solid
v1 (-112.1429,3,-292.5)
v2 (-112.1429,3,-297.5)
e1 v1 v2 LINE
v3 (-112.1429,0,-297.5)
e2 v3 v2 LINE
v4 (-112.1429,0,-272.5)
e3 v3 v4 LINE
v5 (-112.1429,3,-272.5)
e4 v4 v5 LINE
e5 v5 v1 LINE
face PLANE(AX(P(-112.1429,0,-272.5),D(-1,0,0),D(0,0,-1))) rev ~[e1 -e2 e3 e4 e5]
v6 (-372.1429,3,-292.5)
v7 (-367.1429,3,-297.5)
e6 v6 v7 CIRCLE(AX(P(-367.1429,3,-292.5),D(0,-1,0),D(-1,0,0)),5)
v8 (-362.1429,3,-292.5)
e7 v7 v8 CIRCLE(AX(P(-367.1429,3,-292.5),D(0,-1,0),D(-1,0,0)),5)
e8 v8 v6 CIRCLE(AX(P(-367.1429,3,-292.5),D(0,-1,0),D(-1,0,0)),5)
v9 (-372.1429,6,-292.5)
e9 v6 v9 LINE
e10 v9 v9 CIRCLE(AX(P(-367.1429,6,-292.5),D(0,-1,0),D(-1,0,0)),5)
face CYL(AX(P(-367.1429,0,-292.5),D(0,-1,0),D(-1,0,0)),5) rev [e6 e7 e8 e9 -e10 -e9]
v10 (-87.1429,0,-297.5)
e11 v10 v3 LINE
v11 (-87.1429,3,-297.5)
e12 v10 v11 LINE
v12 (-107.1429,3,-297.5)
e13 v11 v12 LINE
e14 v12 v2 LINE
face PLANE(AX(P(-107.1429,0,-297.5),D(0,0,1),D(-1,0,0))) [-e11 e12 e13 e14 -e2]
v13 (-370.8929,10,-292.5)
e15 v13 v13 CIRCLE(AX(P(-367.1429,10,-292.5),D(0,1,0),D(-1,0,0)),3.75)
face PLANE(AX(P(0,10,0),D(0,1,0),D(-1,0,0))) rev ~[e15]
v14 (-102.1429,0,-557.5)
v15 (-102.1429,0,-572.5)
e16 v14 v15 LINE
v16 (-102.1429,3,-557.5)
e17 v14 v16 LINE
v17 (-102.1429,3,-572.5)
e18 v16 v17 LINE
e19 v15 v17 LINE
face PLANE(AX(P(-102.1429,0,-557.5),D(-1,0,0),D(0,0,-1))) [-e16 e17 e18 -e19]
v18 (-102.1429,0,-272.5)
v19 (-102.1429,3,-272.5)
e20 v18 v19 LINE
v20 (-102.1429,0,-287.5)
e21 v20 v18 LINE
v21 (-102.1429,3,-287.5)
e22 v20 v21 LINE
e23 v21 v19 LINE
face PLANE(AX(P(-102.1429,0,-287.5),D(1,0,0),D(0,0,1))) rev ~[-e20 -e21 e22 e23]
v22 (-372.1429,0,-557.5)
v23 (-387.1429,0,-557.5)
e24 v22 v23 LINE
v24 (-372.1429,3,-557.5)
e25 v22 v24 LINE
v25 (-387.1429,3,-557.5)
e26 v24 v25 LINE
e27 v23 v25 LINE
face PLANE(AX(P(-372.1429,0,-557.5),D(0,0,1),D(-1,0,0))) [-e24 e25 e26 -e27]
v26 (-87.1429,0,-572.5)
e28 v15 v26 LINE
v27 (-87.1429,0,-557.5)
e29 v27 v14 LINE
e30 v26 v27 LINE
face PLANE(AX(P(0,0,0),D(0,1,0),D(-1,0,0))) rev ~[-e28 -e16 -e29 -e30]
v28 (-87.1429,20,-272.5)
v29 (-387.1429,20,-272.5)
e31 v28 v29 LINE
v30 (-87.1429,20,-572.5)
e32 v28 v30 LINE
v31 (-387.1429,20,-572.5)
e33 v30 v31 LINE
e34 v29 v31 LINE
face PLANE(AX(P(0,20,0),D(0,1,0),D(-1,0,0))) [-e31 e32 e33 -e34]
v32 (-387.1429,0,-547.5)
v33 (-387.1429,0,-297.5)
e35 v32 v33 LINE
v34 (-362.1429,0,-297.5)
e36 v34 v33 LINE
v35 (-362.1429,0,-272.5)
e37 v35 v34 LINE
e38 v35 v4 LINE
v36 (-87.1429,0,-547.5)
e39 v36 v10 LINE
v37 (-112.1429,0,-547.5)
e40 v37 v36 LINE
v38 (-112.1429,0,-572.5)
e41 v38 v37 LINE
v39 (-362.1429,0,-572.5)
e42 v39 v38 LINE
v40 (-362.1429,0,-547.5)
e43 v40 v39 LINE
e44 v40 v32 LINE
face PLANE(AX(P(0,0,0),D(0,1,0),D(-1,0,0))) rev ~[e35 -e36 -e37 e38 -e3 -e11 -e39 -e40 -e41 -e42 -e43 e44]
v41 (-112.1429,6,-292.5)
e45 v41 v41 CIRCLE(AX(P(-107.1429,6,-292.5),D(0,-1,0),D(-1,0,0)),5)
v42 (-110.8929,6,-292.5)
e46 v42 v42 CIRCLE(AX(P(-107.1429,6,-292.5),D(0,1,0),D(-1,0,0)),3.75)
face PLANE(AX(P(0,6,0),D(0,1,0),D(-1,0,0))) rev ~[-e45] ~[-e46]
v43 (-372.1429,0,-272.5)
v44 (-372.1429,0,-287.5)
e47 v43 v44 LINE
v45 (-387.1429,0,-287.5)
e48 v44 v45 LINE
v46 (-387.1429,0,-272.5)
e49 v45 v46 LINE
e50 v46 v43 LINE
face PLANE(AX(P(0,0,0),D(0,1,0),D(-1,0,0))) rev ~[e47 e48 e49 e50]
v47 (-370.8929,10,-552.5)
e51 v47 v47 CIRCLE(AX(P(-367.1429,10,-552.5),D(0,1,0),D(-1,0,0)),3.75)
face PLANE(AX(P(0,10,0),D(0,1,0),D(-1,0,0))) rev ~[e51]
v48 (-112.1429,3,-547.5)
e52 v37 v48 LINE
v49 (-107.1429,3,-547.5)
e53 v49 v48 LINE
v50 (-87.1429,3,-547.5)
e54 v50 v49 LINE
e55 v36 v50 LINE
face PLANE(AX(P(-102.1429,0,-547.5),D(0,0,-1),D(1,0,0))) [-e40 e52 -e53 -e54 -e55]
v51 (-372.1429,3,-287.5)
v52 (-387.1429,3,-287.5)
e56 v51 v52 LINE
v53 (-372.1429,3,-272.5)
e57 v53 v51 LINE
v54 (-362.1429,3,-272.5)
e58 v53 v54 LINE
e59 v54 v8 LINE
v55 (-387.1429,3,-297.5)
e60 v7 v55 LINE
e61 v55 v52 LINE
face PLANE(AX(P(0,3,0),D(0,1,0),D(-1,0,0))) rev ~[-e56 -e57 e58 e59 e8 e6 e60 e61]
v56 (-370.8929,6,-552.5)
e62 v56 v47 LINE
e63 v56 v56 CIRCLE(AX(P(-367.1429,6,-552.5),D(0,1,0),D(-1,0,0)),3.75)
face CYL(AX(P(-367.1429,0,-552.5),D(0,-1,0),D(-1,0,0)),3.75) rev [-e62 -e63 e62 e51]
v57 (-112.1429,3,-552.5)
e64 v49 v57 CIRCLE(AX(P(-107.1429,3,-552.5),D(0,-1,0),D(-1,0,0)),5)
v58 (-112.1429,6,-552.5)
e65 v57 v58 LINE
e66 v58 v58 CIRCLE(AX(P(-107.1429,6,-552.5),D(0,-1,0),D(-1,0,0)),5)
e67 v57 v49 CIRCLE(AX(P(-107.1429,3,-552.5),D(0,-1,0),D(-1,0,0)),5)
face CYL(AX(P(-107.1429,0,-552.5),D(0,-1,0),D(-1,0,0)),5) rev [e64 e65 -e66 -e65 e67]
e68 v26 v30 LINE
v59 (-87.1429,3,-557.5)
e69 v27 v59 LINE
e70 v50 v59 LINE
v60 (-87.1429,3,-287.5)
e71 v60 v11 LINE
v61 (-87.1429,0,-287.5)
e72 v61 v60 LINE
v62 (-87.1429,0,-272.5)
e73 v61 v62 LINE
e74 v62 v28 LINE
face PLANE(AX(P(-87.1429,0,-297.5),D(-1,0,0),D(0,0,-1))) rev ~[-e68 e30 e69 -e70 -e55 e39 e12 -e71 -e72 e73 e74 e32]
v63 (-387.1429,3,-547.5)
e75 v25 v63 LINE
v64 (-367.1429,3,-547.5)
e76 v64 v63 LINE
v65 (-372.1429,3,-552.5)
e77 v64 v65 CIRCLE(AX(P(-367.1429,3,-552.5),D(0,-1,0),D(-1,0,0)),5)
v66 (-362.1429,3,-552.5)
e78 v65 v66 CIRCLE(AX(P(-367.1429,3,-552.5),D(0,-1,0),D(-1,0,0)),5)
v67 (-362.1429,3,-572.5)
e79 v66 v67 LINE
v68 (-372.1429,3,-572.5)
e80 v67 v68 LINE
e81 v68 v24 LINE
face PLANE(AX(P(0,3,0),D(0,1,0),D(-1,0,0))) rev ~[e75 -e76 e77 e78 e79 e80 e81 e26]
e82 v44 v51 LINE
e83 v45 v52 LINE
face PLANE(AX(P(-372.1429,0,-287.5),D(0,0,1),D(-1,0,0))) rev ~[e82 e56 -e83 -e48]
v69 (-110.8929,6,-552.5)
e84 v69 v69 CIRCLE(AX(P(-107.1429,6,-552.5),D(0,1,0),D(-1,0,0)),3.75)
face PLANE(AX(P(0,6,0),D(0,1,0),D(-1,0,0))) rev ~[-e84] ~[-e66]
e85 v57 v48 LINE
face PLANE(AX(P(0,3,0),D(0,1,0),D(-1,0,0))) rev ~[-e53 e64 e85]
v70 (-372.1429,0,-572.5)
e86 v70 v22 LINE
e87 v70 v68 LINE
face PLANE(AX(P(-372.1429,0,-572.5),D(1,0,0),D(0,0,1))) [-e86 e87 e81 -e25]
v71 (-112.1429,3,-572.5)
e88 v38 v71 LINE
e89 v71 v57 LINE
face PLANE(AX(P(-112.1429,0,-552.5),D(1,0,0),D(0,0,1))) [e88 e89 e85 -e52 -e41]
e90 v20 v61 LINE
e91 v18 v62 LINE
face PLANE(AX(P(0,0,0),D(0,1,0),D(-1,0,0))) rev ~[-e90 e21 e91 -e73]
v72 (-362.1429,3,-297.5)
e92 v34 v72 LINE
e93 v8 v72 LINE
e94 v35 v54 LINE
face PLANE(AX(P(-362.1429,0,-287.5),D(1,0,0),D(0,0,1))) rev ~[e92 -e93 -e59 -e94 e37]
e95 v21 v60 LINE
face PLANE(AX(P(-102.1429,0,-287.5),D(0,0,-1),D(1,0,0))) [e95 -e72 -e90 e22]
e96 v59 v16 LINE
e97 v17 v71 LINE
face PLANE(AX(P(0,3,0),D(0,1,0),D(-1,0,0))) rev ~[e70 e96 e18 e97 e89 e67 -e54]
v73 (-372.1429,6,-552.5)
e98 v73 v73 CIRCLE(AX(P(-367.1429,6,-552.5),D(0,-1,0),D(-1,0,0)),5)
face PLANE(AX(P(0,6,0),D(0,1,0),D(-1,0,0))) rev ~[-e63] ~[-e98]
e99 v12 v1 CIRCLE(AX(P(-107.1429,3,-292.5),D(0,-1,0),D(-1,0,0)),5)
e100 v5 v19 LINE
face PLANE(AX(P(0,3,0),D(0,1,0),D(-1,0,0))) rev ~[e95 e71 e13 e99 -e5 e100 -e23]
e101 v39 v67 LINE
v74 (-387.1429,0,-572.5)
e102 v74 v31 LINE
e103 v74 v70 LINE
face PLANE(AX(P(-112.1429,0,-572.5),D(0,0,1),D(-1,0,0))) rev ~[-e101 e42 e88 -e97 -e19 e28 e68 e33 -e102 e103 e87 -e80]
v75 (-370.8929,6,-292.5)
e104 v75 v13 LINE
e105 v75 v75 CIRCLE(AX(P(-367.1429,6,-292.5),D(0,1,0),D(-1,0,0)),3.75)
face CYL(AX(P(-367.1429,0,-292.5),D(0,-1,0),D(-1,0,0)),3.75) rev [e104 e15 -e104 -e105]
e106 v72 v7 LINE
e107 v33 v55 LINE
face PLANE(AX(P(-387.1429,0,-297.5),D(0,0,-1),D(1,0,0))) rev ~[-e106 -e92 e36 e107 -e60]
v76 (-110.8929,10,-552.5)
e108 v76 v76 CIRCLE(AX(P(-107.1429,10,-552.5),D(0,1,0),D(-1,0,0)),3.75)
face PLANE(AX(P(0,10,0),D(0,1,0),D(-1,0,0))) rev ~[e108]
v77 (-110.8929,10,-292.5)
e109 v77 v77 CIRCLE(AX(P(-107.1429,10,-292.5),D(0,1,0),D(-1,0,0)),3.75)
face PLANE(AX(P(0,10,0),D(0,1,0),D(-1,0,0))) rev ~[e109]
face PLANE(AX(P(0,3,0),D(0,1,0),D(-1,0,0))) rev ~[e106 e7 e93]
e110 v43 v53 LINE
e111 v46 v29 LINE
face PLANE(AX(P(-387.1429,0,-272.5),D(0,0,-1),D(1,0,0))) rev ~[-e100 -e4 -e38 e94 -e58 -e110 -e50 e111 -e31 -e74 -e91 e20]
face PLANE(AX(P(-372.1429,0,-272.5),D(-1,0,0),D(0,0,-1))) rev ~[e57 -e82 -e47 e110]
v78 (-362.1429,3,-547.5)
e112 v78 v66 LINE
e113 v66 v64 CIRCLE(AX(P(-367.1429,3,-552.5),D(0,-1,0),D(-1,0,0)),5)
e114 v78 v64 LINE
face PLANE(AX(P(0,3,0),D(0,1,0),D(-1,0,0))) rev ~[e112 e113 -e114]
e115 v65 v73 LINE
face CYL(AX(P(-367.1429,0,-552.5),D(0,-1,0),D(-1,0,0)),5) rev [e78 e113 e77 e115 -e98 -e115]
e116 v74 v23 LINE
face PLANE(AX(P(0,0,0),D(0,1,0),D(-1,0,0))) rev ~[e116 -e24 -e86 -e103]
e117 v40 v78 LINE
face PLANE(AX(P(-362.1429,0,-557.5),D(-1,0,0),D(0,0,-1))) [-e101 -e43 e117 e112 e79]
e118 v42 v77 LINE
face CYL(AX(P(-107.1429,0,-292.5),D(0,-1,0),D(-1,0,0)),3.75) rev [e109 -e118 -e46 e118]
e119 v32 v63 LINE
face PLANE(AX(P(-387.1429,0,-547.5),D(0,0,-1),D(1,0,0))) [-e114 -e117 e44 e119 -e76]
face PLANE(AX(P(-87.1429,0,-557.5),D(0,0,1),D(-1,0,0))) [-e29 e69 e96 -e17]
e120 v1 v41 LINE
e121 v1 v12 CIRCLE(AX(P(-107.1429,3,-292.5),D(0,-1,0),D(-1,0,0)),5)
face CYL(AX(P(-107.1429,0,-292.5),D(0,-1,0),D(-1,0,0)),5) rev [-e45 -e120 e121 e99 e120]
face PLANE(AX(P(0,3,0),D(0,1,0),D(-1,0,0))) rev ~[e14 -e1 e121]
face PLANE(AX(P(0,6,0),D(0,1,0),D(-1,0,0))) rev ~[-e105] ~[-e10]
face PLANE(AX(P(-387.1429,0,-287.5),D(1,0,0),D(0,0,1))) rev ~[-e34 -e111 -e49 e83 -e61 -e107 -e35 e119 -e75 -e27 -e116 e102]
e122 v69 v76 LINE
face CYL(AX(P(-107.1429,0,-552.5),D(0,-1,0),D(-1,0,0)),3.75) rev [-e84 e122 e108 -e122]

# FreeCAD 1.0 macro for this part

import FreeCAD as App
import Part
import Sketcher
from FreeCAD import Vector


def add_polygon(sketch, points):
    """Adds a closed chain of lines whose ends are joined by coincident constraints."""
    first, n = sketch.GeometryCount, len(points)
    for a, b in zip(points, points[1:] + points[:1]):
        sketch.addGeometry(Part.LineSegment(App.Vector(*a, 0), App.Vector(*b, 0)), False)
    for i in range(n):
        sketch.addConstraint(Sketcher.Constraint("Coincident", first + i, 2, first + (i + 1) % n, 1))

doc = App.newDocument("Part")
body = doc.addObject("PartDesign::Body", "Body")

sketch1 = body.newObject("Sketcher::SketchObject", "Sketch")
sketch1.AttachmentSupport = (doc.getObject("XZ_Plane"), [""])
sketch1.MapMode = "FlatFace"
add_polygon(sketch1, [(-387, -272), (-87, -272), (-87, -572), (-387, -572)])
sketch1.addConstraint(Sketcher.Constraint("Horizontal", 0))
sketch1.addConstraint(Sketcher.Constraint("Vertical", 1))
sketch1.addConstraint(Sketcher.Constraint("Horizontal", 2))
sketch1.addConstraint(Sketcher.Constraint("Vertical", 3))
sketch1.addConstraint(Sketcher.Constraint("Equal", 2, 1))
sketch1.addConstraint(Sketcher.Constraint("DistanceX", 0, 1, 0, 2, 300.0))
sketch1.addConstraint(Sketcher.Constraint("DistanceY", 0, 2, -1, 1, 272.5))
sketch1.addConstraint(Sketcher.Constraint("DistanceX", 0, 2, -1, 1, 87.143))
pad1 = body.newObject("PartDesign::Pad", "Pad")
pad1.Profile = sketch1
pad1.Length = 20
pad1.Reversed = True

sketch2 = body.newObject("Sketcher::SketchObject", "Sketch001")
sketch2.AttachmentSupport = (doc.getObject("XZ_Plane"), [""])
sketch2.MapMode = "FlatFace"
add_polygon(sketch2, [(-372, -288), (-372, -272), (-362, -272), (-362, -298), (-387, -298), (-387, -288)])
add_polygon(sketch2, [(-112, -272), (-102, -272), (-102, -288), (-87, -288), (-87, -298), (-112, -298)])
add_polygon(sketch2, [(-387, -558), (-387, -548), (-362, -548), (-362, -572), (-372, -572), (-372, -558)])
add_polygon(sketch2, [(-87, -548), (-87, -558), (-102, -558), (-102, -572), (-112, -572), (-112, -548)])
sketch2.addConstraint(Sketcher.Constraint("Vertical", 0))
sketch2.addConstraint(Sketcher.Constraint("Horizontal", 1))
sketch2.addConstraint(Sketcher.Constraint("Vertical", 2))
sketch2.addConstraint(Sketcher.Constraint("Horizontal", 3))
sketch2.addConstraint(Sketcher.Constraint("Vertical", 4))
sketch2.addConstraint(Sketcher.Constraint("Horizontal", 5))
sketch2.addConstraint(Sketcher.Constraint("Horizontal", 6))
sketch2.addConstraint(Sketcher.Constraint("Vertical", 7))
sketch2.addConstraint(Sketcher.Constraint("Horizontal", 8))
sketch2.addConstraint(Sketcher.Constraint("Vertical", 9))
sketch2.addConstraint(Sketcher.Constraint("Horizontal", 10))
sketch2.addConstraint(Sketcher.Constraint("Vertical", 11))
sketch2.addConstraint(Sketcher.Constraint("Vertical", 12))
sketch2.addConstraint(Sketcher.Constraint("Horizontal", 13))
sketch2.addConstraint(Sketcher.Constraint("Vertical", 14))
sketch2.addConstraint(Sketcher.Constraint("Horizontal", 15))
sketch2.addConstraint(Sketcher.Constraint("Vertical", 16))
sketch2.addConstraint(Sketcher.Constraint("Horizontal", 17))
sketch2.addConstraint(Sketcher.Constraint("Vertical", 18))
sketch2.addConstraint(Sketcher.Constraint("Horizontal", 19))
sketch2.addConstraint(Sketcher.Constraint("Vertical", 20))
sketch2.addConstraint(Sketcher.Constraint("Horizontal", 21))
sketch2.addConstraint(Sketcher.Constraint("Vertical", 22))
sketch2.addConstraint(Sketcher.Constraint("Horizontal", 23))
sketch2.addConstraint(Sketcher.Constraint("Horizontal", 1, 2, 6, 2))
sketch2.addConstraint(Sketcher.Constraint("Horizontal", 5, 2, 7, 2))
sketch2.addConstraint(Sketcher.Constraint("Horizontal", 3, 2, 9, 2))
sketch2.addConstraint(Sketcher.Constraint("Horizontal", 17, 2, 18, 2))
sketch2.addConstraint(Sketcher.Constraint("Horizontal", 15, 2, 20, 2))
sketch2.addConstraint(Sketcher.Constraint("Horizontal", 13, 2, 22, 2))
sketch2.addConstraint(Sketcher.Constraint("Vertical", 4, 2, 12, 2))
sketch2.addConstraint(Sketcher.Constraint("Vertical", 2, 2, 13, 2))
sketch2.addConstraint(Sketcher.Constraint("Vertical", 5, 2, 15, 2))
sketch2.addConstraint(Sketcher.Constraint("Vertical", 9, 2, 18, 2))
sketch2.addConstraint(Sketcher.Constraint("Vertical", 7, 2, 19, 2))
sketch2.addConstraint(Sketcher.Constraint("Vertical", 11, 2, 21, 2))
sketch2.addConstraint(Sketcher.Constraint("Equal", 1, 6))
sketch2.addConstraint(Sketcher.Constraint("Equal", 5, 8))
sketch2.addConstraint(Sketcher.Constraint("Equal", 19, 0))
sketch2.addConstraint(Sketcher.Constraint("Equal", 23, 2))
sketch2.addConstraint(Sketcher.Constraint("Equal", 9, 12))
sketch2.addConstraint(Sketcher.Constraint("Equal", 11, 14))
sketch2.addConstraint(Sketcher.Constraint("DistanceX", 1, 1, 1, 2, 10.0))
sketch2.addConstraint(Sketcher.Constraint("DistanceX", 3, 2, 3, 1, 25.0))
sketch2.addConstraint(Sketcher.Constraint("DistanceX", 1, 2, 6, 2, 260.0))
sketch2.addConstraint(Sketcher.Constraint("DistanceY", 12, 2, 3, 2, 250.0))
sketch2.addConstraint(Sketcher.Constraint("DistanceY", 0, 2, -1, 1, 272.5))
sketch2.addConstraint(Sketcher.Constraint("DistanceX", 0, 2, -1, 1, 372.143))
pocket1 = body.newObject("PartDesign::Pocket", "Pocket")
pocket1.Profile = sketch2
pocket1.Length = 3

sketch3 = body.newObject("Sketcher::SketchObject", "Sketch002")
sketch3.AttachmentSupport = (doc.getObject("XZ_Plane"), [""])
sketch3.MapMode = "FlatFace"
sketch3.addGeometry(Part.Circle(Vector(-107.1, -292.5, 0), Vector(0, 0, 1), 3.8), False)
sketch3.addGeometry(Part.Circle(Vector(-367.1, -292.5, 0), Vector(0, 0, 1), 3.8), False)
sketch3.addGeometry(Part.Circle(Vector(-367.1, -552.5, 0), Vector(0, 0, 1), 3.8), False)
sketch3.addGeometry(Part.Circle(Vector(-107.1, -552.5, 0), Vector(0, 0, 1), 3.8), False)
sketch3.addConstraint(Sketcher.Constraint("Equal", 0, 1))
sketch3.addConstraint(Sketcher.Constraint("Equal", 1, 2))
sketch3.addConstraint(Sketcher.Constraint("Equal", 2, 3))
sketch3.addConstraint(Sketcher.Constraint("Horizontal", 0, 3, 1, 3))
sketch3.addConstraint(Sketcher.Constraint("Horizontal", 2, 3, 3, 3))
sketch3.addConstraint(Sketcher.Constraint("Vertical", 1, 3, 2, 3))
sketch3.addConstraint(Sketcher.Constraint("Vertical", 0, 3, 3, 3))
sketch3.addConstraint(Sketcher.Constraint("Diameter", 0, 7.5))
sketch3.addConstraint(Sketcher.Constraint("DistanceX", 1, 3, 0, 3, 260.0))
sketch3.addConstraint(Sketcher.Constraint("DistanceY", 2, 3, 1, 3, 260.0))
sketch3.addConstraint(Sketcher.Constraint("DistanceY", 0, 3, -1, 1, 292.5))
sketch3.addConstraint(Sketcher.Constraint("DistanceX", 0, 3, -1, 1, 107.143))
pocket2 = body.newObject("PartDesign::Pocket", "Pocket001")
pocket2.Profile = sketch3
pocket2.Length = 10

sketch4 = body.newObject("Sketcher::SketchObject", "Sketch003")
sketch4.AttachmentSupport = (doc.getObject("XZ_Plane"), [""])
sketch4.MapMode = "FlatFace"
sketch4.addGeometry(Part.Circle(Vector(-367.1, -292.5, 0), Vector(0, 0, 1), 5), False)
sketch4.addGeometry(Part.Circle(Vector(-367.1, -292.5, 0), Vector(0, 0, 1), 3.8), False)
sketch4.addGeometry(Part.Circle(Vector(-107.1, -292.5, 0), Vector(0, 0, 1), 5), False)
sketch4.addGeometry(Part.Circle(Vector(-107.1, -292.5, 0), Vector(0, 0, 1), 3.8), False)
sketch4.addGeometry(Part.Circle(Vector(-367.1, -552.5, 0), Vector(0, 0, 1), 5), False)
sketch4.addGeometry(Part.Circle(Vector(-367.1, -552.5, 0), Vector(0, 0, 1), 3.8), False)
sketch4.addGeometry(Part.Circle(Vector(-107.1, -552.5, 0), Vector(0, 0, 1), 5), False)
sketch4.addGeometry(Part.Circle(Vector(-107.1, -552.5, 0), Vector(0, 0, 1), 3.8), False)
sketch4.addConstraint(Sketcher.Constraint("Coincident", 1, 3, 0, 3))
sketch4.addConstraint(Sketcher.Constraint("Coincident", 3, 3, 2, 3))
sketch4.addConstraint(Sketcher.Constraint("Coincident", 5, 3, 4, 3))
sketch4.addConstraint(Sketcher.Constraint("Coincident", 7, 3, 6, 3))
sketch4.addConstraint(Sketcher.Constraint("Equal", 0, 2))
sketch4.addConstraint(Sketcher.Constraint("Equal", 1, 3))
sketch4.addConstraint(Sketcher.Constraint("Equal", 2, 4))
sketch4.addConstraint(Sketcher.Constraint("Equal", 3, 5))
sketch4.addConstraint(Sketcher.Constraint("Equal", 4, 6))
sketch4.addConstraint(Sketcher.Constraint("Equal", 5, 7))
sketch4.addConstraint(Sketcher.Constraint("Horizontal", 1, 3, 2, 3))
sketch4.addConstraint(Sketcher.Constraint("Horizontal", 5, 3, 6, 3))
sketch4.addConstraint(Sketcher.Constraint("Vertical", 1, 3, 4, 3))
sketch4.addConstraint(Sketcher.Constraint("Vertical", 3, 3, 6, 3))
sketch4.addConstraint(Sketcher.Constraint("Diameter", 0, 10.0))
sketch4.addConstraint(Sketcher.Constraint("Diameter", 1, 7.5))
sketch4.addConstraint(Sketcher.Constraint("DistanceX", 0, 3, 2, 3, 260.0))
sketch4.addConstraint(Sketcher.Constraint("DistanceY", 4, 3, 0, 3, 260.0))
sketch4.addConstraint(Sketcher.Constraint("DistanceY", 0, 3, -1, 1, 292.5))
sketch4.addConstraint(Sketcher.Constraint("DistanceX", 0, 3, -1, 1, 367.143))
pocket3 = body.newObject("PartDesign::Pocket", "Pocket002")
pocket3.Profile = sketch4
pocket3.Length = 6

doc.recompute()
